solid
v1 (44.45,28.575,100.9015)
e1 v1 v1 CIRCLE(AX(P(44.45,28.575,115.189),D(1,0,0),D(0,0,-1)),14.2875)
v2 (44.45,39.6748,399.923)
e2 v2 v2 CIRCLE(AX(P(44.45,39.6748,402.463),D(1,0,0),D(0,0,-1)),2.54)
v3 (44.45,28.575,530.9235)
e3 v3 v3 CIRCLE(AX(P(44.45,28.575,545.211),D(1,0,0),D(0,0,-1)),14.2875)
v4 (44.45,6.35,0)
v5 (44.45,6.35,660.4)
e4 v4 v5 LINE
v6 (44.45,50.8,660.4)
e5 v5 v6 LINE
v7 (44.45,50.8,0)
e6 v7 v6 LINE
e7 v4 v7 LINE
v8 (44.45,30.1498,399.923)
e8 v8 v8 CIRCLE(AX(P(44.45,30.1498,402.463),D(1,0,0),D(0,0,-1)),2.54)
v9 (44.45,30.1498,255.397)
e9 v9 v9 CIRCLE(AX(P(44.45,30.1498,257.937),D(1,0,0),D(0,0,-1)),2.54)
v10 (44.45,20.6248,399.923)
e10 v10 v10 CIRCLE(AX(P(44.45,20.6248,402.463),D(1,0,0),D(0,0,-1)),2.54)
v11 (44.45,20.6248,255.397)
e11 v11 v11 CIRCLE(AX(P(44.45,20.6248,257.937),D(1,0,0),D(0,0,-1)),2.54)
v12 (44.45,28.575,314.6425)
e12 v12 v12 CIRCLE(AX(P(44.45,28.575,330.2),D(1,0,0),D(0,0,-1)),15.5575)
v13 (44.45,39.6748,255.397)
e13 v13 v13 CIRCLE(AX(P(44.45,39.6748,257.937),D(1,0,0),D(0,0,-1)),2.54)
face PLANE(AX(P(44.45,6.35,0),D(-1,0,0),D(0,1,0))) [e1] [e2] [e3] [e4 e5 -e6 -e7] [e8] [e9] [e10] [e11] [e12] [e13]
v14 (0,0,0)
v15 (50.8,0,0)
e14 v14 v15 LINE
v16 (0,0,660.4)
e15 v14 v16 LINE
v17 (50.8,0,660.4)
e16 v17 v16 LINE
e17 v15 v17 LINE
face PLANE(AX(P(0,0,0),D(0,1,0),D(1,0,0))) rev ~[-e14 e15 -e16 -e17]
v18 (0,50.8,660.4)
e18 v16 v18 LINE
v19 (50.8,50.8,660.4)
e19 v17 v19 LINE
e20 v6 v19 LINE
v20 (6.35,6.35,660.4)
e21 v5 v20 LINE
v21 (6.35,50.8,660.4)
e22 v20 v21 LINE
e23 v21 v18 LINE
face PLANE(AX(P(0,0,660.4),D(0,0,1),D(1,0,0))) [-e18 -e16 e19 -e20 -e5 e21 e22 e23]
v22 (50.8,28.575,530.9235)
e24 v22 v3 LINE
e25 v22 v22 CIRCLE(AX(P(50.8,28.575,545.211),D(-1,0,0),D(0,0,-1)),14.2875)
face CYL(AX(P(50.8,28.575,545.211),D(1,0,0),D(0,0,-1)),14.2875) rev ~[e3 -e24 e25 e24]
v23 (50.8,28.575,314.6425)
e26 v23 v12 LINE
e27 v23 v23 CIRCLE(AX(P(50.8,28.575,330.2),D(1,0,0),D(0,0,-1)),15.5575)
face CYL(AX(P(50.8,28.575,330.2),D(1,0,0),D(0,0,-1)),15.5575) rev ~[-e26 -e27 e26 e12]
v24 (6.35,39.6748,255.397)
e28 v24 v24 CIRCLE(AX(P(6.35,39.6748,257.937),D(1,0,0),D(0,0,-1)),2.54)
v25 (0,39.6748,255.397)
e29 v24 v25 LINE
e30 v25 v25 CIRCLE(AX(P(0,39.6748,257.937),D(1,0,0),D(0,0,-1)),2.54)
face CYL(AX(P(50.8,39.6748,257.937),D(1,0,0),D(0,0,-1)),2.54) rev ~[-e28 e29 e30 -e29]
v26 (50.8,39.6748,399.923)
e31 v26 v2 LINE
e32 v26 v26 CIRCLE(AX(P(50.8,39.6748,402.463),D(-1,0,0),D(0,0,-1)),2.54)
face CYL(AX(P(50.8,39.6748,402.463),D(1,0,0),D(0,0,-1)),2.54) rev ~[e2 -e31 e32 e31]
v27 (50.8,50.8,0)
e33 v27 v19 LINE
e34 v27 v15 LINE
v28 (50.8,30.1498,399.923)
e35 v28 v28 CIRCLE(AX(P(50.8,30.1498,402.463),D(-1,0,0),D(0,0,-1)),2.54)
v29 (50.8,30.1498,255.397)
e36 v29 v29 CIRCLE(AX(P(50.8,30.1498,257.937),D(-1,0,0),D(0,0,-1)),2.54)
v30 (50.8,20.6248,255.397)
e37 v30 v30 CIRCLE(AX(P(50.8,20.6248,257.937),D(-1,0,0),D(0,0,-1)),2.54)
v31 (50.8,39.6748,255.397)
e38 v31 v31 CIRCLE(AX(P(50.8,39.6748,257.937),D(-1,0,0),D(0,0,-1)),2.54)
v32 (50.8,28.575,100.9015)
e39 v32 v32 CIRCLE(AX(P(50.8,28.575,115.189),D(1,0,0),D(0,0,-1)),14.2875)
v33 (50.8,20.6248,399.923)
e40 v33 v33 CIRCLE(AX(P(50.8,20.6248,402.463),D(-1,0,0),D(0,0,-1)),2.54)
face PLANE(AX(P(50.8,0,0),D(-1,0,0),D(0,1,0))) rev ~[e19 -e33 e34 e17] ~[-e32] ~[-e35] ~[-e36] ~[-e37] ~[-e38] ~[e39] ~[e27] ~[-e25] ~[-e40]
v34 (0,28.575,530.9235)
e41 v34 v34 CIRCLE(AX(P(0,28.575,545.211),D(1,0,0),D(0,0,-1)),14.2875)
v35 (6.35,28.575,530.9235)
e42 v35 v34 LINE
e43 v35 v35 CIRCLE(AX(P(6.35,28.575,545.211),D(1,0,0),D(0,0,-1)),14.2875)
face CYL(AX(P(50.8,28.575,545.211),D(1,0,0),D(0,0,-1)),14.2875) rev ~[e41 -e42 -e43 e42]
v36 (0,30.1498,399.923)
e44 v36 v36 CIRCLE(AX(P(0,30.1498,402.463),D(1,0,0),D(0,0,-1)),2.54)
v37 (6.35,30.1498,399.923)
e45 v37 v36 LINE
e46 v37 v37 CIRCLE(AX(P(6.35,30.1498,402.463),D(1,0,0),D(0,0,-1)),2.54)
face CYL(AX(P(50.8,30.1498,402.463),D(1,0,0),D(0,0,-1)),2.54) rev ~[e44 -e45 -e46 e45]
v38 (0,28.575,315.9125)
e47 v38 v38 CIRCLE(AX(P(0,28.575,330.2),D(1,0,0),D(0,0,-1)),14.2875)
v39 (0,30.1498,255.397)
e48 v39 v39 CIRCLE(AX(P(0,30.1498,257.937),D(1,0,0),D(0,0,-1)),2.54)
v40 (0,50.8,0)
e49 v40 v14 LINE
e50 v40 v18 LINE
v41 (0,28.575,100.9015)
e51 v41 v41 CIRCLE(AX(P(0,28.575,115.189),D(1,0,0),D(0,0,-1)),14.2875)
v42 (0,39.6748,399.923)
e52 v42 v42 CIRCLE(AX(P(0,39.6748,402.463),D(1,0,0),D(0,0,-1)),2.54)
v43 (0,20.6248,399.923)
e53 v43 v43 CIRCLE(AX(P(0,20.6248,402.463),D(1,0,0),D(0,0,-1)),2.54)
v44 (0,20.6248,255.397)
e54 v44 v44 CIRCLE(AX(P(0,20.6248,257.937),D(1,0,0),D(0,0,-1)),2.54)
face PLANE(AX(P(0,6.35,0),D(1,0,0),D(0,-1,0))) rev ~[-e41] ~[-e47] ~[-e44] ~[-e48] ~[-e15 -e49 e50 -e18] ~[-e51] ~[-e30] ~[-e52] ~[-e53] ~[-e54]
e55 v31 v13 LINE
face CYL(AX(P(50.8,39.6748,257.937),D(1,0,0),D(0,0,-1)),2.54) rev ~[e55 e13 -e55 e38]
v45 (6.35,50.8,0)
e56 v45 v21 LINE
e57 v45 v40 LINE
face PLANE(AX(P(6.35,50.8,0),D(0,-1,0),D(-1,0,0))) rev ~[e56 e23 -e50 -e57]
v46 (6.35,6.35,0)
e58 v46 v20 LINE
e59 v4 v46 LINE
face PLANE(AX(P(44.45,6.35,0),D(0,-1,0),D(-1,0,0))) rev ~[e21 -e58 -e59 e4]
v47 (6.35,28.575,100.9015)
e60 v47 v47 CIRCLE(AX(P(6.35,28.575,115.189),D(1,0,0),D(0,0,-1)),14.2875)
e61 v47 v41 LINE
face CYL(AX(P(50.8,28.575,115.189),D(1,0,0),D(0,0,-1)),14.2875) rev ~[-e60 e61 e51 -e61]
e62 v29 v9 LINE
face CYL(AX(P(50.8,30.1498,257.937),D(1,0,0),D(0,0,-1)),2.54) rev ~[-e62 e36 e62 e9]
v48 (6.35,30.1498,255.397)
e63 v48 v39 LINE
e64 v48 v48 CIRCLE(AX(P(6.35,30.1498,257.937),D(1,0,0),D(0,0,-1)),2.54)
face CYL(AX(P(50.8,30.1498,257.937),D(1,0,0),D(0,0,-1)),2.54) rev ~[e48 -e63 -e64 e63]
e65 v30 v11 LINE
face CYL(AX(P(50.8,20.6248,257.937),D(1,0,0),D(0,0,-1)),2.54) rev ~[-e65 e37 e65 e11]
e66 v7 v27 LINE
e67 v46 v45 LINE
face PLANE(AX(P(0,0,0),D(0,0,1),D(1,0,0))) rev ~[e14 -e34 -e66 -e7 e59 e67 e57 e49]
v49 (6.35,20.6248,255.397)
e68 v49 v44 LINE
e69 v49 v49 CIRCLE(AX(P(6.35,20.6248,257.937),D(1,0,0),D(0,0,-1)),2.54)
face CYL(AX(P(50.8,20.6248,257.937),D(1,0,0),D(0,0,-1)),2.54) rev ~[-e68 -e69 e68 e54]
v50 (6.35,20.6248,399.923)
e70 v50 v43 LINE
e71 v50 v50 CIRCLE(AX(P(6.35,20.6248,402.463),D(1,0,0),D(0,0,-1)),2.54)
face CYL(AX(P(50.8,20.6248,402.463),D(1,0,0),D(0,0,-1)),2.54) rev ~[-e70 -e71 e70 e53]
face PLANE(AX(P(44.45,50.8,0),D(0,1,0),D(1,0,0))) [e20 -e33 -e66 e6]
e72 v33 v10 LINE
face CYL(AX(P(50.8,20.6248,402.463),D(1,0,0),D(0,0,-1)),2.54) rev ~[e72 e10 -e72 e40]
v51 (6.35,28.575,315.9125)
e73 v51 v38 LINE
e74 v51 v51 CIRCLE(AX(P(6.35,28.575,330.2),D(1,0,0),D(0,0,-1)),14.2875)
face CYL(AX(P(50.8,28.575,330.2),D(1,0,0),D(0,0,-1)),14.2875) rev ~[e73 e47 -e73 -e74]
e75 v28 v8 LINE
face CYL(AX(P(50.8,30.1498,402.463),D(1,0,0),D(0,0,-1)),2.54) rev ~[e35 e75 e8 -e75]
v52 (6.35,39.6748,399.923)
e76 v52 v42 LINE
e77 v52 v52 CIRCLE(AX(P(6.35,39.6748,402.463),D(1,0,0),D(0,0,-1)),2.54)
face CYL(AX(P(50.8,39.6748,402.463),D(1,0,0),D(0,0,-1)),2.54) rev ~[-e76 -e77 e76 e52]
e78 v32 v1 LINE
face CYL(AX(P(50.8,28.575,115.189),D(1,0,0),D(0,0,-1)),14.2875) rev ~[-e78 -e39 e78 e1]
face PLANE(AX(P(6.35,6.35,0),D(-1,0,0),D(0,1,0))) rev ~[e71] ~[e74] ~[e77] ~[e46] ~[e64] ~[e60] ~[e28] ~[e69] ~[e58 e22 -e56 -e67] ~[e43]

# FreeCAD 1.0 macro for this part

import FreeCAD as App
import Part
import Sketcher

V = App.Vector
Q = App.Units.Quantity


def add_polygon(sketch, points):
    """Adds a closed chain of lines whose ends are joined by coincident constraints."""
    first, n = sketch.GeometryCount, len(points)
    for a, b in zip(points, points[1:] + points[:1]):
        sketch.addGeometry(Part.LineSegment(App.Vector(*a, 0), App.Vector(*b, 0)), False)
    for i in range(n):
        sketch.addConstraint(Sketcher.Constraint("Coincident", first + i, 2, first + (i + 1) % n, 1))

doc = App.newDocument("Part")
body = doc.addObject("PartDesign::Body", "Body")

sketch1 = body.newObject("Sketcher::SketchObject", "Sketch")
sketch1.AttachmentSupport = (doc.getObject("XY_Plane"), [""])
sketch1.MapMode = "FlatFace"
add_polygon(sketch1, [(0, 0), (50.8, 0), (50.8, 50.8), (44.45, 50.8), (44.45, 6.35), (6.35, 6.35), (6.35, 50.8), (0, 50.8)])
sketch1.addConstraint([
    Sketcher.Constraint("Horizontal", 0),
    Sketcher.Constraint("Vertical", 1),
    Sketcher.Constraint("Horizontal", 2),
    Sketcher.Constraint("Vertical", 3),
    Sketcher.Constraint("Horizontal", 4),
    Sketcher.Constraint("Vertical", 5),
    Sketcher.Constraint("Horizontal", 6),
    Sketcher.Constraint("Vertical", 7),
    Sketcher.Constraint("Coincident", 7, 2, -1, 1),
    Sketcher.Constraint("Horizontal", 2, 2, 5, 2),
    Sketcher.Constraint("Equal", 2, 6),
    Sketcher.Constraint("Equal", 0, 1),
    Sketcher.Constraint("DistanceX", 0, 1, 0, 2, Q("2 in")),
    Sketcher.Constraint("DistanceX", 2, 2, 2, 1, Q("0.25 in")),
    Sketcher.Constraint("DistanceY", -1, 1, 3, 2, Q("0.25 in")),
])
pad1 = body.newObject("PartDesign::Pad", "Pad")
pad1.Profile = sketch1
pad1.Length = Q("26 in")

sketch2 = body.newObject("Sketcher::SketchObject", "Sketch001")
sketch2.AttachmentSupport = (doc.getObject("YZ_Plane"), [""])
sketch2.MapMode = "FlatFace"
sketch2.AttachmentOffset = App.Placement(V(0, 0, 2 * 25.4), App.Rotation())
sketch2.addGeometry([
    Part.Circle(V(28.575, 115.189, 0), V(0, 0, 1), 14.2875),
    Part.Circle(V(28.575, 330.2, 0), V(0, 0, 1), 14.2875),
    Part.Circle(V(28.575, 545.211, 0), V(0, 0, 1), 14.2875),
], False)
sketch2.addConstraint([
    Sketcher.Constraint("Equal", 0, 1),
    Sketcher.Constraint("Equal", 1, 2),
    Sketcher.Constraint("Vertical", 0, 3, 1, 3),
    Sketcher.Constraint("Vertical", 1, 3, 2, 3),
    Sketcher.Constraint("Diameter", 0, Q("1.125 in")),
    Sketcher.Constraint("DistanceX", -1, 1, 0, 3, Q("1.125 in")),
    Sketcher.Constraint("DistanceY", -1, 1, 0, 3, Q("4.535 in")),
    Sketcher.Constraint("DistanceY", -1, 1, 1, 3, Q("13 in")),
    Sketcher.Constraint("DistanceY", 0, 3, 2, 3, Q("16.93 in")),
])
pocket1 = body.newObject("PartDesign::Pocket", "Pocket")
pocket1.Profile = sketch2
pocket1.Length = Q("26 in")

sketch3 = body.newObject("Sketcher::SketchObject", "Sketch002")
sketch3.AttachmentSupport = (doc.getObject("YZ_Plane"), [""])
sketch3.MapMode = "FlatFace"
sketch3.AttachmentOffset = App.Placement(V(0, 0, 2 * 25.4), App.Rotation())
sketch3.addGeometry([
    Part.Circle(V(28.575, 330.2, 0), V(0, 0, 1), 15.5575),
    Part.Circle(V(28.575, 330.2, 0), V(0, 0, 1), 14.2875),
], False)
sketch3.addConstraint([
    Sketcher.Constraint("Coincident", 1, 3, 0, 3),
    Sketcher.Constraint("Diameter", 0, Q("1.225 in")),
    Sketcher.Constraint("Diameter", 1, Q("1.125 in")),
    Sketcher.Constraint("DistanceY", -1, 1, 0, 3, Q("13 in")),
    Sketcher.Constraint("DistanceX", -1, 1, 0, 3, Q("1.125 in")),
])
pocket2 = body.newObject("PartDesign::Pocket", "Pocket001")
pocket2.Profile = sketch3
pocket2.Length = Q("1 in")

sketch4 = body.newObject("Sketcher::SketchObject", "Sketch003")
sketch4.AttachmentSupport = (doc.getObject("YZ_Plane"), [""])
sketch4.MapMode = "FlatFace"
sketch4.AttachmentOffset = App.Placement(V(0, 0, 2 * 25.4), App.Rotation())
sketch4.addGeometry([
    Part.Circle(V(20.6248, 402.463, 0), V(0, 0, 1), 2.54),
    Part.Circle(V(30.1498, 402.463, 0), V(0, 0, 1), 2.54),
    Part.Circle(V(39.6748, 402.463, 0), V(0, 0, 1), 2.54),
    Part.Circle(V(20.6248, 257.937, 0), V(0, 0, 1), 2.54),
    Part.Circle(V(30.1498, 257.937, 0), V(0, 0, 1), 2.54),
    Part.Circle(V(39.6748, 257.937, 0), V(0, 0, 1), 2.54),
], False)
sketch4.addConstraint([
    Sketcher.Constraint("Equal", 0, 1),
    Sketcher.Constraint("Equal", 1, 2),
    Sketcher.Constraint("Equal", 2, 3),
    Sketcher.Constraint("Equal", 3, 4),
    Sketcher.Constraint("Equal", 4, 5),
    Sketcher.Constraint("Horizontal", 0, 3, 1, 3),
    Sketcher.Constraint("Horizontal", 1, 3, 2, 3),
    Sketcher.Constraint("Horizontal", 3, 3, 4, 3),
    Sketcher.Constraint("Horizontal", 4, 3, 5, 3),
    Sketcher.Constraint("Vertical", 0, 3, 3, 3),
    Sketcher.Constraint("Vertical", 1, 3, 4, 3),
    Sketcher.Constraint("Vertical", 2, 3, 5, 3),
    Sketcher.Constraint("Diameter", 0, Q("0.2 in")),
    Sketcher.Constraint("DistanceX", 0, 3, 1, 3, Q("0.375 in")),
    Sketcher.Constraint("DistanceX", 1, 3, 2, 3, Q("0.375 in")),
    Sketcher.Constraint("DistanceY", 3, 3, 0, 3, Q("5.69 in")),
    Sketcher.Constraint("DistanceX", -1, 1, 0, 3, Q("0.812 in")),
    Sketcher.Constraint("DistanceY", -1, 1, 0, 3, Q("15.845 in")),
])
pocket3 = body.newObject("PartDesign::Pocket", "Pocket002")
pocket3.Profile = sketch4
pocket3.Length = Q("3.3125 in")

doc.recompute()
